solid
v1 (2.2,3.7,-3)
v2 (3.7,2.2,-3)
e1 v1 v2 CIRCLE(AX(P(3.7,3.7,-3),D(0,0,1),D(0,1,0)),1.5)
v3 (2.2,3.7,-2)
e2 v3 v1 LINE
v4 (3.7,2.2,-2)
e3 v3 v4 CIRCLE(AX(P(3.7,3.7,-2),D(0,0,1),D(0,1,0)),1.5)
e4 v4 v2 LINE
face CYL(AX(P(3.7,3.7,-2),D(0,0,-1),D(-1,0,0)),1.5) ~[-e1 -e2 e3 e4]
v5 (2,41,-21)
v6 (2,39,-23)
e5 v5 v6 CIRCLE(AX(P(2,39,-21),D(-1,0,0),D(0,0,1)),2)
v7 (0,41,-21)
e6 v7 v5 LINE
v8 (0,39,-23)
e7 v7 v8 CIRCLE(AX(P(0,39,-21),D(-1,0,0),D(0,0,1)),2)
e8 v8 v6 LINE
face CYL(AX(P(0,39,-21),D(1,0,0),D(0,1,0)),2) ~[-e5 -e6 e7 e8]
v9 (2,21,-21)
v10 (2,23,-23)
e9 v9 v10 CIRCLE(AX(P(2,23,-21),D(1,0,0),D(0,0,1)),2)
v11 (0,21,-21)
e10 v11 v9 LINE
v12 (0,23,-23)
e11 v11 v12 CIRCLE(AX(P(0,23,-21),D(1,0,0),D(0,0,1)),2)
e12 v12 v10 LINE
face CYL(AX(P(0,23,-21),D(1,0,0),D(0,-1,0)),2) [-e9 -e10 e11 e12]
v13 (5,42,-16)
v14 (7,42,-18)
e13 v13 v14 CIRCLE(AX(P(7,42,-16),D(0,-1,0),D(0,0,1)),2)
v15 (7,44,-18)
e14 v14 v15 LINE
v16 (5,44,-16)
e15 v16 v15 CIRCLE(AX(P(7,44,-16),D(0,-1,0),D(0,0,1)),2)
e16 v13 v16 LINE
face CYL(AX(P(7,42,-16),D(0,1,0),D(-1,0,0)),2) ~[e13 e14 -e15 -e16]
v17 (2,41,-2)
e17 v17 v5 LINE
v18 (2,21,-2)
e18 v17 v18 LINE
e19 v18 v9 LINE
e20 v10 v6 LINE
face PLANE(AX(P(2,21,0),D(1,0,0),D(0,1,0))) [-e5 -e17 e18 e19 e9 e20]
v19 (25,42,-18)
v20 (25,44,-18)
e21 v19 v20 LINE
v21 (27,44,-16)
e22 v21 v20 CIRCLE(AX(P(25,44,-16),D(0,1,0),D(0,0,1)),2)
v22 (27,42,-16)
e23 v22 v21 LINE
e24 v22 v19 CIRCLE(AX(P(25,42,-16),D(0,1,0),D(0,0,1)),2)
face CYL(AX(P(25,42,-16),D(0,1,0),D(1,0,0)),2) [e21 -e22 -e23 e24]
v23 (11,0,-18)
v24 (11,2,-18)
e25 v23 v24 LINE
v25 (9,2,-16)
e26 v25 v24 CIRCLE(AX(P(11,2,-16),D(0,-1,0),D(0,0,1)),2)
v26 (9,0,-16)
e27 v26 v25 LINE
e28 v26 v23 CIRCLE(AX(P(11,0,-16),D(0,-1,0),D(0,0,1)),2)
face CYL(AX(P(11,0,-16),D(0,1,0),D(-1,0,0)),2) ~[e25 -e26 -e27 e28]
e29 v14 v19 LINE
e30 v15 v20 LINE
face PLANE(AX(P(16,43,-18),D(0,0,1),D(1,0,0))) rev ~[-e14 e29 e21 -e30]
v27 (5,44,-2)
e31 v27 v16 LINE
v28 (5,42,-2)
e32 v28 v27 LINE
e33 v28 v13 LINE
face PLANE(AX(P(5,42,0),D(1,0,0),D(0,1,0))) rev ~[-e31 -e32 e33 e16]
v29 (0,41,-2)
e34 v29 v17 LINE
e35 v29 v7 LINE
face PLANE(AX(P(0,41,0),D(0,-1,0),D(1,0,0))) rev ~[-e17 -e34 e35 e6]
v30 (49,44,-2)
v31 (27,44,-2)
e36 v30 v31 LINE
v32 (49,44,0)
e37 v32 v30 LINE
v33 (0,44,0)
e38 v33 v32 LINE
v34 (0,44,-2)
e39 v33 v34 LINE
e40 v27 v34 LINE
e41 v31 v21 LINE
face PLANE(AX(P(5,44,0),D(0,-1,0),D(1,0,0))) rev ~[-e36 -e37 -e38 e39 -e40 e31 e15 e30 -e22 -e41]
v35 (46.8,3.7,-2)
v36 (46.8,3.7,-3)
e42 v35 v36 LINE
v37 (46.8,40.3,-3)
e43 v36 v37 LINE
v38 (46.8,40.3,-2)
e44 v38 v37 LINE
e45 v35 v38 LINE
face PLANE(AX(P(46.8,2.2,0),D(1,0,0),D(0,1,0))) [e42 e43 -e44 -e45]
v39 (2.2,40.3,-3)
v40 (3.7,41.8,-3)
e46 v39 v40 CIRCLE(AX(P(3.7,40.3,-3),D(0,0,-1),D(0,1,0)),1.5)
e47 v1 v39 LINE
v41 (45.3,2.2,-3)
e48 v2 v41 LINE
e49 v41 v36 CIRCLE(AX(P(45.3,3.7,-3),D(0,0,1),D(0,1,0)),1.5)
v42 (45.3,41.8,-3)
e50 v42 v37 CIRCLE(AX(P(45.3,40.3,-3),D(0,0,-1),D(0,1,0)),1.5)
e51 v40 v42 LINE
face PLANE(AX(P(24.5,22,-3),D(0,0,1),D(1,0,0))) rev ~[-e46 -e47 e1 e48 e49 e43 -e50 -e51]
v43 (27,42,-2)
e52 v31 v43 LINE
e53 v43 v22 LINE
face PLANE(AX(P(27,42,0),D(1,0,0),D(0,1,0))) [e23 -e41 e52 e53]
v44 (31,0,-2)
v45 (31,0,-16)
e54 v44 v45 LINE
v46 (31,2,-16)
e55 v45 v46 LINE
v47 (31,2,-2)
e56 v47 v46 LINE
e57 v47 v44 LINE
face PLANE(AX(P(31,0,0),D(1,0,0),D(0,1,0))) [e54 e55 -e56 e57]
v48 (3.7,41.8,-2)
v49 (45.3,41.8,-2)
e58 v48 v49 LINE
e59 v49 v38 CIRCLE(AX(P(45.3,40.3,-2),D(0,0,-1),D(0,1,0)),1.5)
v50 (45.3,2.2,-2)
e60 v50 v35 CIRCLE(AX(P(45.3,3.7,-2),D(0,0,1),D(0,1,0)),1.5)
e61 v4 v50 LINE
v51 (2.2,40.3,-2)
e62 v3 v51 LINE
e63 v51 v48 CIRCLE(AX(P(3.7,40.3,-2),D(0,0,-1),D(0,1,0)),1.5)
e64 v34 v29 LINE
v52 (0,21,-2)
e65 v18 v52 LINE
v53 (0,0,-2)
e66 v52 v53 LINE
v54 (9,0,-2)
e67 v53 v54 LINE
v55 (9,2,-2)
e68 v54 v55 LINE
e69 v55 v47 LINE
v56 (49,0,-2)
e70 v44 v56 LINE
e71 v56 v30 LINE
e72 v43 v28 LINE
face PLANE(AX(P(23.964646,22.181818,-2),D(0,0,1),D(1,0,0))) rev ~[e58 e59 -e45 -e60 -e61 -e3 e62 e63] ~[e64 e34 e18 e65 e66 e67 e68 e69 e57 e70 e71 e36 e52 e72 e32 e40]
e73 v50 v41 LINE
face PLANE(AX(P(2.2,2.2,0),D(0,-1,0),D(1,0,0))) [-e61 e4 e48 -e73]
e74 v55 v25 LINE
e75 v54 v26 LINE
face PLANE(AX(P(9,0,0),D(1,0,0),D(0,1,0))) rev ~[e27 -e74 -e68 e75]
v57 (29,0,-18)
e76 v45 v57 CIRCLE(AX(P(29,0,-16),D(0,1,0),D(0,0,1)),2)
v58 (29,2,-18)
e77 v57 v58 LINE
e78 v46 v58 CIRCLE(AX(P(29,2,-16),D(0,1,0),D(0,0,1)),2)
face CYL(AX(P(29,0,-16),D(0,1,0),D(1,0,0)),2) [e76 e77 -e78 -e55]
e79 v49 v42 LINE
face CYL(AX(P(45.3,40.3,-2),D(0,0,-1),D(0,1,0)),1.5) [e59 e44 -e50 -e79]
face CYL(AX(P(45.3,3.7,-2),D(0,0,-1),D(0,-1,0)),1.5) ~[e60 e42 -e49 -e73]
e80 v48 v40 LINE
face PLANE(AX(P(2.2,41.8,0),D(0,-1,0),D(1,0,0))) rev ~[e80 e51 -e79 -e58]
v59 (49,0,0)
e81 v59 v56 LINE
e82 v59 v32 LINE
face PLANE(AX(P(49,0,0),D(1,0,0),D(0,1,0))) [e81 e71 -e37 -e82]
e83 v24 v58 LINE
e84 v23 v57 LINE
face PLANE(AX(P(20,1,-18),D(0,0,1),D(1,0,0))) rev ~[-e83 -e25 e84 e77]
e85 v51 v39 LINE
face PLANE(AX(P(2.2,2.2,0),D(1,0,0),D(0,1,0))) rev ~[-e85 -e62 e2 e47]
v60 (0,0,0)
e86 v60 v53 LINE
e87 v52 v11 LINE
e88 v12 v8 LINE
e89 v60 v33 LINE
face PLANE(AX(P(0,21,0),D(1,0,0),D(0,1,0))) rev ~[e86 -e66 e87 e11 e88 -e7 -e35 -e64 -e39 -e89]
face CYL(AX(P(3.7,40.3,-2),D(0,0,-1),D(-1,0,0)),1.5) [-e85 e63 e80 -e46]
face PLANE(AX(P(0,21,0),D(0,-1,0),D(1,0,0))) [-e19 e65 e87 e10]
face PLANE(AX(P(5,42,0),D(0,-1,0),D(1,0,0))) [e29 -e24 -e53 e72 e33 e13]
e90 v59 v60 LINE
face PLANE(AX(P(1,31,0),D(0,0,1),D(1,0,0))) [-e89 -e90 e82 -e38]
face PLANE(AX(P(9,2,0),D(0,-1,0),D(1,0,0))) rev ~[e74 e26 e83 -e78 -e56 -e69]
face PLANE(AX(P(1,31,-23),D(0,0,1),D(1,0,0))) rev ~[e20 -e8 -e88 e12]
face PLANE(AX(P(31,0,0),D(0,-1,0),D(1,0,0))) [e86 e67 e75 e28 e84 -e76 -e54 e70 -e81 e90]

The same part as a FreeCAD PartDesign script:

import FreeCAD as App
import Part
import Sketcher


def edges_at(feature, points):
    """Names of the edges that pass closest to the given points."""
    edges = feature.Shape.Edges
    near = lambda p: min(range(len(edges)), key=lambda i: edges[i].distToShape(Part.Vertex(*p))[0])
    return sorted({f"Edge{near(p) + 1}" for p in points})

doc = App.newDocument("Part")
body = doc.addObject("PartDesign::Body", "Body")

# Sketch on XY plane
sketch1 = doc.addObject("Sketcher::SketchObject", "Sketch")
body.addObject(sketch1)
sketch1.AttachmentSupport = (doc.XY_Plane, [""])
sketch1.MapMode = "FlatFace"
sketch1.addGeometry(Part.LineSegment(App.Vector(31, 0, 0), App.Vector(49, 0, 0)), False)
sketch1.addGeometry(Part.LineSegment(App.Vector(49, 0, 0), App.Vector(49, 44, 0)), False)
sketch1.addGeometry(Part.LineSegment(App.Vector(49, 44, 0), App.Vector(27, 44, 0)), False)
sketch1.addGeometry(Part.LineSegment(App.Vector(27, 44, 0), App.Vector(27, 42, 0)), False)
sketch1.addGeometry(Part.LineSegment(App.Vector(27, 42, 0), App.Vector(5, 42, 0)), False)
sketch1.addGeometry(Part.LineSegment(App.Vector(5, 42, 0), App.Vector(5, 44, 0)), False)
sketch1.addGeometry(Part.LineSegment(App.Vector(5, 44, 0), App.Vector(0, 44, 0)), False)
sketch1.addGeometry(Part.LineSegment(App.Vector(0, 44, 0), App.Vector(0, 41, 0)), False)
sketch1.addGeometry(Part.LineSegment(App.Vector(0, 41, 0), App.Vector(2, 41, 0)), False)
sketch1.addGeometry(Part.LineSegment(App.Vector(2, 41, 0), App.Vector(2, 21, 0)), False)
sketch1.addGeometry(Part.LineSegment(App.Vector(2, 21, 0), App.Vector(0, 21, 0)), False)
sketch1.addGeometry(Part.LineSegment(App.Vector(0, 21, 0), App.Vector(0, 0, 0)), False)
sketch1.addGeometry(Part.LineSegment(App.Vector(0, 0, 0), App.Vector(9, 0, 0)), False)
sketch1.addGeometry(Part.LineSegment(App.Vector(9, 0, 0), App.Vector(9, 2, 0)), False)
sketch1.addGeometry(Part.LineSegment(App.Vector(9, 2, 0), App.Vector(31, 2, 0)), False)
sketch1.addGeometry(Part.LineSegment(App.Vector(31, 2, 0), App.Vector(31, 0, 0)), False)
sketch1.addGeometry(Part.LineSegment(App.Vector(46.8, 2.2, 0), App.Vector(2.2, 2.2, 0)), False)
sketch1.addGeometry(Part.LineSegment(App.Vector(2.2, 2.2, 0), App.Vector(2.2, 41.8, 0)), False)
sketch1.addGeometry(Part.LineSegment(App.Vector(2.2, 41.8, 0), App.Vector(46.8, 41.8, 0)), False)
sketch1.addGeometry(Part.LineSegment(App.Vector(46.8, 41.8, 0), App.Vector(46.8, 2.2, 0)), False)
sketch1.addConstraint(Sketcher.Constraint("Coincident", 0, 2, 1, 1))
sketch1.addConstraint(Sketcher.Constraint("Coincident", 1, 2, 2, 1))
sketch1.addConstraint(Sketcher.Constraint("Coincident", 2, 2, 3, 1))
sketch1.addConstraint(Sketcher.Constraint("Coincident", 3, 2, 4, 1))
sketch1.addConstraint(Sketcher.Constraint("Coincident", 4, 2, 5, 1))
sketch1.addConstraint(Sketcher.Constraint("Coincident", 5, 2, 6, 1))
sketch1.addConstraint(Sketcher.Constraint("Coincident", 6, 2, 7, 1))
sketch1.addConstraint(Sketcher.Constraint("Coincident", 7, 2, 8, 1))
sketch1.addConstraint(Sketcher.Constraint("Coincident", 8, 2, 9, 1))
sketch1.addConstraint(Sketcher.Constraint("Coincident", 9, 2, 10, 1))
sketch1.addConstraint(Sketcher.Constraint("Coincident", 10, 2, 11, 1))
sketch1.addConstraint(Sketcher.Constraint("Coincident", 11, 2, 12, 1))
sketch1.addConstraint(Sketcher.Constraint("Coincident", 12, 2, 13, 1))
sketch1.addConstraint(Sketcher.Constraint("Coincident", 13, 2, 14, 1))
sketch1.addConstraint(Sketcher.Constraint("Coincident", 14, 2, 15, 1))
sketch1.addConstraint(Sketcher.Constraint("Coincident", 15, 2, 0, 1))
sketch1.addConstraint(Sketcher.Constraint("Coincident", 16, 2, 17, 1))
sketch1.addConstraint(Sketcher.Constraint("Coincident", 17, 2, 18, 1))
sketch1.addConstraint(Sketcher.Constraint("Coincident", 18, 2, 19, 1))
sketch1.addConstraint(Sketcher.Constraint("Coincident", 19, 2, 16, 1))
sketch1.addConstraint(Sketcher.Constraint("Horizontal", 0))
sketch1.addConstraint(Sketcher.Constraint("Vertical", 1))
sketch1.addConstraint(Sketcher.Constraint("Horizontal", 2))
sketch1.addConstraint(Sketcher.Constraint("Vertical", 3))
sketch1.addConstraint(Sketcher.Constraint("Horizontal", 4))
sketch1.addConstraint(Sketcher.Constraint("Vertical", 5))
sketch1.addConstraint(Sketcher.Constraint("Horizontal", 6))
sketch1.addConstraint(Sketcher.Constraint("Vertical", 7))
sketch1.addConstraint(Sketcher.Constraint("Horizontal", 8))
sketch1.addConstraint(Sketcher.Constraint("Vertical", 9))
sketch1.addConstraint(Sketcher.Constraint("Horizontal", 10))
sketch1.addConstraint(Sketcher.Constraint("Vertical", 11))
sketch1.addConstraint(Sketcher.Constraint("Horizontal", 12))
sketch1.addConstraint(Sketcher.Constraint("Vertical", 13))
sketch1.addConstraint(Sketcher.Constraint("Horizontal", 14))
sketch1.addConstraint(Sketcher.Constraint("Vertical", 15))
sketch1.addConstraint(Sketcher.Constraint("Horizontal", 16))
sketch1.addConstraint(Sketcher.Constraint("Vertical", 17))
sketch1.addConstraint(Sketcher.Constraint("Horizontal", 18))
sketch1.addConstraint(Sketcher.Constraint("Vertical", 19))
sketch1.addConstraint(Sketcher.Constraint("Coincident", 11, 2, -1, 1))
sketch1.addConstraint(Sketcher.Constraint("PointOnObject", 0, 2, -1))
sketch1.addConstraint(Sketcher.Constraint("PointOnObject", 6, 2, -2))
sketch1.addConstraint(Sketcher.Constraint("Horizontal", 2, 2, 5, 2))
sketch1.addConstraint(Sketcher.Constraint("Equal", 2, 4))
sketch1.addConstraint(Sketcher.Constraint("Equal", 4, 14))
sketch1.addConstraint(Sketcher.Constraint("Equal", 10, 3))
sketch1.addConstraint(Sketcher.Constraint("Equal", 5, 13))
sketch1.addConstraint(Sketcher.Constraint("DistanceX", 0, 1, 0, 2, 18.0))
sketch1.addConstraint(Sketcher.Constraint("DistanceX", 2, 2, 2, 1, 22.0))
sketch1.addConstraint(Sketcher.Constraint("DistanceX", 6, 2, 6, 1, 5.0))
sketch1.addConstraint(Sketcher.Constraint("DistanceX", 8, 1, 8, 2, 2.0))
sketch1.addConstraint(Sketcher.Constraint("DistanceY", 1, 1, 1, 2, 44.0))
sketch1.addConstraint(Sketcher.Constraint("DistanceY", 7, 2, 7, 1, 3.0))
sketch1.addConstraint(Sketcher.Constraint("DistanceY", 9, 2, 9, 1, 20.0))
sketch1.addConstraint(Sketcher.Constraint("DistanceX", 16, 2, 16, 1, 44.6))
sketch1.addConstraint(Sketcher.Constraint("DistanceY", 17, 1, 17, 2, 39.6))
sketch1.addConstraint(Sketcher.Constraint("DistanceX", -1, 1, 16, 2, 2.2))
sketch1.addConstraint(Sketcher.Constraint("DistanceY", -1, 1, 16, 2, 2.2))
pad1 = doc.addObject("PartDesign::Pad", "Pad")
body.addObject(pad1)
pad1.Profile = sketch1
pad1.Length = 2
pad1.Reversed = True

# Sketch on XY plane
sketch2 = doc.addObject("Sketcher::SketchObject", "Sketch001")
body.addObject(sketch2)
sketch2.AttachmentSupport = (doc.XY_Plane, [""])
sketch2.MapMode = "FlatFace"
sketch2.addGeometry(Part.LineSegment(App.Vector(5, 44, 0), App.Vector(5, 42, 0)), False)
sketch2.addGeometry(Part.LineSegment(App.Vector(5, 42, 0), App.Vector(27, 42, 0)), False)
sketch2.addGeometry(Part.LineSegment(App.Vector(27, 42, 0), App.Vector(27, 44, 0)), False)
sketch2.addGeometry(Part.LineSegment(App.Vector(27, 44, 0), App.Vector(5, 44, 0)), False)
sketch2.addGeometry(Part.LineSegment(App.Vector(9, 2, 0), App.Vector(9, 0, 0)), False)
sketch2.addGeometry(Part.LineSegment(App.Vector(9, 0, 0), App.Vector(31, 0, 0)), False)
sketch2.addGeometry(Part.LineSegment(App.Vector(31, 0, 0), App.Vector(31, 2, 0)), False)
sketch2.addGeometry(Part.LineSegment(App.Vector(31, 2, 0), App.Vector(9, 2, 0)), False)
sketch2.addConstraint(Sketcher.Constraint("Coincident", 0, 2, 1, 1))
sketch2.addConstraint(Sketcher.Constraint("Coincident", 1, 2, 2, 1))
sketch2.addConstraint(Sketcher.Constraint("Coincident", 2, 2, 3, 1))
sketch2.addConstraint(Sketcher.Constraint("Coincident", 3, 2, 0, 1))
sketch2.addConstraint(Sketcher.Constraint("Coincident", 4, 2, 5, 1))
sketch2.addConstraint(Sketcher.Constraint("Coincident", 5, 2, 6, 1))
sketch2.addConstraint(Sketcher.Constraint("Coincident", 6, 2, 7, 1))
sketch2.addConstraint(Sketcher.Constraint("Coincident", 7, 2, 4, 1))
sketch2.addConstraint(Sketcher.Constraint("Vertical", 0))
sketch2.addConstraint(Sketcher.Constraint("Horizontal", 1))
sketch2.addConstraint(Sketcher.Constraint("Vertical", 2))
sketch2.addConstraint(Sketcher.Constraint("Horizontal", 3))
sketch2.addConstraint(Sketcher.Constraint("Vertical", 4))
sketch2.addConstraint(Sketcher.Constraint("Horizontal", 5))
sketch2.addConstraint(Sketcher.Constraint("Vertical", 6))
sketch2.addConstraint(Sketcher.Constraint("Horizontal", 7))
sketch2.addConstraint(Sketcher.Constraint("PointOnObject", 4, 2, -1))
sketch2.addConstraint(Sketcher.Constraint("Equal", 3, 5))
sketch2.addConstraint(Sketcher.Constraint("Equal", 2, 4))
sketch2.addConstraint(Sketcher.Constraint("DistanceX", 1, 1, 1, 2, 22.0))
sketch2.addConstraint(Sketcher.Constraint("DistanceY", 0, 2, 0, 1, 2.0))
sketch2.addConstraint(Sketcher.Constraint("DistanceX", -1, 1, 0, 2, 5.0))
sketch2.addConstraint(Sketcher.Constraint("DistanceY", -1, 1, 0, 2, 42.0))
sketch2.addConstraint(Sketcher.Constraint("DistanceX", -1, 1, 4, 2, 9.0))
pad2 = doc.addObject("PartDesign::Pad", "Pad001")
body.addObject(pad2)
pad2.Profile = sketch2
pad2.Length = 18
pad2.Reversed = True

# Sketch on XY plane
sketch3 = doc.addObject("Sketcher::SketchObject", "Sketch002")
body.addObject(sketch3)
sketch3.AttachmentSupport = (doc.XY_Plane, [""])
sketch3.MapMode = "FlatFace"
sketch3.addGeometry(Part.LineSegment(App.Vector(0, 41, 0), App.Vector(0, 21, 0)), False)
sketch3.addGeometry(Part.LineSegment(App.Vector(0, 21, 0), App.Vector(2, 21, 0)), False)
sketch3.addGeometry(Part.LineSegment(App.Vector(2, 21, 0), App.Vector(2, 41, 0)), False)
sketch3.addGeometry(Part.LineSegment(App.Vector(2, 41, 0), App.Vector(0, 41, 0)), False)
sketch3.addConstraint(Sketcher.Constraint("Coincident", 0, 2, 1, 1))
sketch3.addConstraint(Sketcher.Constraint("Coincident", 1, 2, 2, 1))
sketch3.addConstraint(Sketcher.Constraint("Coincident", 2, 2, 3, 1))
sketch3.addConstraint(Sketcher.Constraint("Coincident", 3, 2, 0, 1))
sketch3.addConstraint(Sketcher.Constraint("Vertical", 0))
sketch3.addConstraint(Sketcher.Constraint("Horizontal", 1))
sketch3.addConstraint(Sketcher.Constraint("Vertical", 2))
sketch3.addConstraint(Sketcher.Constraint("Horizontal", 3))
sketch3.addConstraint(Sketcher.Constraint("PointOnObject", 0, 2, -2))
sketch3.addConstraint(Sketcher.Constraint("DistanceX", 1, 1, 1, 2, 2.0))
sketch3.addConstraint(Sketcher.Constraint("DistanceY", 0, 2, 0, 1, 20.0))
sketch3.addConstraint(Sketcher.Constraint("DistanceY", -1, 1, 0, 2, 21.0))
pad3 = doc.addObject("PartDesign::Pad", "Pad002")
body.addObject(pad3)
pad3.Profile = sketch3
pad3.Length = 23
pad3.Reversed = True

# Sketch on XY plane
sketch4 = doc.addObject("Sketcher::SketchObject", "Sketch003")
body.addObject(sketch4)
sketch4.AttachmentSupport = (doc.XY_Plane, [""])
sketch4.MapMode = "FlatFace"
sketch4.addGeometry(Part.LineSegment(App.Vector(2, 42, 0), App.Vector(2, 2, 0)), False)
sketch4.addGeometry(Part.LineSegment(App.Vector(2, 2, 0), App.Vector(47, 2, 0)), False)
sketch4.addGeometry(Part.LineSegment(App.Vector(47, 2, 0), App.Vector(47, 42, 0)), False)
sketch4.addGeometry(Part.LineSegment(App.Vector(47, 42, 0), App.Vector(2, 42, 0)), False)
sketch4.addConstraint(Sketcher.Constraint("Coincident", 0, 2, 1, 1))
sketch4.addConstraint(Sketcher.Constraint("Coincident", 1, 2, 2, 1))
sketch4.addConstraint(Sketcher.Constraint("Coincident", 2, 2, 3, 1))
sketch4.addConstraint(Sketcher.Constraint("Coincident", 3, 2, 0, 1))
sketch4.addConstraint(Sketcher.Constraint("Vertical", 0))
sketch4.addConstraint(Sketcher.Constraint("Horizontal", 1))
sketch4.addConstraint(Sketcher.Constraint("Vertical", 2))
sketch4.addConstraint(Sketcher.Constraint("Horizontal", 3))
sketch4.addConstraint(Sketcher.Constraint("DistanceX", 1, 1, 1, 2, 44.6))
sketch4.addConstraint(Sketcher.Constraint("DistanceY", 0, 2, 0, 1, 39.6))
sketch4.addConstraint(Sketcher.Constraint("DistanceX", -1, 1, 0, 2, 2.2))
sketch4.addConstraint(Sketcher.Constraint("DistanceY", -1, 1, 0, 2, 2.2))
pad4 = doc.addObject("PartDesign::Pad", "Pad003")
body.addObject(pad4)
pad4.Profile = sketch4
pad4.Length = 3
pad4.Reversed = True
doc.recompute()

fillet = doc.addObject("PartDesign::Fillet", "Fillet")
body.addObject(fillet)
fillet.Base = (pad4, edges_at(pad4, [
    (2.2, 2.2, -2.5),
    (2.2, 41.8, -2.5),
    (46.8, 2.2, -2.5),
    (46.8, 41.8, -2.5),
]))
fillet.Radius = 1.5
doc.recompute()

fillet2 = doc.addObject("PartDesign::Fillet", "Fillet001")
body.addObject(fillet2)
fillet2.Base = (fillet, edges_at(fillet, [
    (5, 43, -18),
    (27, 43, -18),
    (1, 41, -23),
    (1, 21, -23),
    (31, 1, -18),
    (9, 1, -18),
]))
fillet2.Radius = 2

doc.recompute()
